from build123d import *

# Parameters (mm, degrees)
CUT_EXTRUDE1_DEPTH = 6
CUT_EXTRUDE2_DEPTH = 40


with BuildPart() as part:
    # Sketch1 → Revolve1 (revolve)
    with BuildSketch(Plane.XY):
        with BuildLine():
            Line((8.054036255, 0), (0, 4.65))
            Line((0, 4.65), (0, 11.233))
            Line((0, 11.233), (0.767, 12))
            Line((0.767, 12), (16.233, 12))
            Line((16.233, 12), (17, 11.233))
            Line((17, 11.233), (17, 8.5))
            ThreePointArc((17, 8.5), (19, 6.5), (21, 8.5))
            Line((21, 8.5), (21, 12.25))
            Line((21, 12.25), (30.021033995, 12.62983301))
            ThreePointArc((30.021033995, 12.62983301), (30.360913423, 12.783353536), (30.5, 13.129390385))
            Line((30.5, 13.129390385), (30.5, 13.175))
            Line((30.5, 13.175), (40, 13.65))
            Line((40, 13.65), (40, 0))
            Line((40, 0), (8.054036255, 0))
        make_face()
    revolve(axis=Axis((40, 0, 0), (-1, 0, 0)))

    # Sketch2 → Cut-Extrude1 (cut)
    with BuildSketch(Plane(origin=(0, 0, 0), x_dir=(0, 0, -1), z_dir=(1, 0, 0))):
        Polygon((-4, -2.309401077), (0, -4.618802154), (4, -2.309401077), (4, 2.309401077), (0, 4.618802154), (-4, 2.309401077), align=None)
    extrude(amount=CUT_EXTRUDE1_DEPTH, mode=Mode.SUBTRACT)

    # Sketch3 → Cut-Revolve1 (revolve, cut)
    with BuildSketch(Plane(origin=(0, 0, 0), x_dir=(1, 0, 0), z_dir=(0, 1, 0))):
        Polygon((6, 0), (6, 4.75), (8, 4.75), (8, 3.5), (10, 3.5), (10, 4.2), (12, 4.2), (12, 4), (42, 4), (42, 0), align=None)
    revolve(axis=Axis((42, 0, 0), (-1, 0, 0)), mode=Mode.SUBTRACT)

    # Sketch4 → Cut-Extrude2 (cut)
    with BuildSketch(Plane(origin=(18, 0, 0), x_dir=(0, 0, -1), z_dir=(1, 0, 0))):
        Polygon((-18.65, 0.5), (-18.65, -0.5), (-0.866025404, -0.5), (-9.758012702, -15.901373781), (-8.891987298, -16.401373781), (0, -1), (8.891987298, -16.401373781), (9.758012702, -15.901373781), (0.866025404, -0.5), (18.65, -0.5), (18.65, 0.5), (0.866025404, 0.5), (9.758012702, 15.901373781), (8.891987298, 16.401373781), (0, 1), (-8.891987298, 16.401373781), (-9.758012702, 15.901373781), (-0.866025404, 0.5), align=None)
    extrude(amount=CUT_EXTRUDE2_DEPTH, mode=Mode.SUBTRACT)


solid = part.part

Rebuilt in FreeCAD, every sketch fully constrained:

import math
import FreeCAD as App
import Part
import Sketcher
Q = App.Units.Quantity

doc = App.newDocument("Part")
body = doc.addObject("PartDesign::Body", "Body")

sketch1 = doc.addObject("Sketcher::SketchObject", "Sketch")
body.addObject(sketch1)
sketch1.AttachmentSupport = (doc.XY_Plane, [""])
sketch1.MapMode = "FlatFace"
sketch1.addGeometry(Part.LineSegment(App.Vector(0, 4.65, 0), App.Vector(8.054, 0, 0)), False)
sketch1.addGeometry(Part.LineSegment(App.Vector(8.054, 0, 0), App.Vector(40, 0, 0)), False)
sketch1.addGeometry(Part.LineSegment(App.Vector(40, 0, 0), App.Vector(40, 13.65, 0)), False)
sketch1.addGeometry(Part.LineSegment(App.Vector(40, 13.65, 0), App.Vector(30.5, 13.175, 0)), False)
sketch1.addGeometry(Part.LineSegment(App.Vector(30.5, 13.175, 0), App.Vector(30.5, 13.129, 0)), False)
sketch1.addGeometry(Part.ArcOfCircle(Part.Circle(App.Vector(30, 13.129, 0), App.Vector(0, 0, 1), 0.5), math.radians(-88), math.radians(0)), False)
sketch1.addGeometry(Part.LineSegment(App.Vector(30.021, 12.63, 0), App.Vector(21, 12.25, 0)), False)
sketch1.addGeometry(Part.LineSegment(App.Vector(21, 12.25, 0), App.Vector(21, 8.5, 0)), False)
sketch1.addGeometry(Part.ArcOfCircle(Part.Circle(App.Vector(19, 8.5, 0), App.Vector(0, 0, 1), 2), math.radians(180), math.radians(360)), False)
sketch1.addGeometry(Part.LineSegment(App.Vector(17, 8.5, 0), App.Vector(17, 11.233, 0)), False)
sketch1.addGeometry(Part.LineSegment(App.Vector(17, 11.233, 0), App.Vector(16.233, 12, 0)), False)
sketch1.addGeometry(Part.LineSegment(App.Vector(16.233, 12, 0), App.Vector(0.767, 12, 0)), False)
sketch1.addGeometry(Part.LineSegment(App.Vector(0.767, 12, 0), App.Vector(0, 11.233, 0)), False)
sketch1.addGeometry(Part.LineSegment(App.Vector(0, 11.233, 0), App.Vector(0, 4.65, 0)), False)
sketch1.addConstraint(Sketcher.Constraint("Coincident", 0, 2, 1, 1))
sketch1.addConstraint(Sketcher.Constraint("Coincident", 1, 2, 2, 1))
sketch1.addConstraint(Sketcher.Constraint("Coincident", 2, 2, 3, 1))
sketch1.addConstraint(Sketcher.Constraint("Coincident", 3, 2, 4, 1))
sketch1.addConstraint(Sketcher.Constraint("Tangent", 4, 2, 5, 2))
sketch1.addConstraint(Sketcher.Constraint("Tangent", 5, 1, 6, 1))
sketch1.addConstraint(Sketcher.Constraint("Coincident", 6, 2, 7, 1))
sketch1.addConstraint(Sketcher.Constraint("Tangent", 7, 2, 8, 2))
sketch1.addConstraint(Sketcher.Constraint("Tangent", 8, 1, 9, 1))
sketch1.addConstraint(Sketcher.Constraint("Coincident", 9, 2, 10, 1))
sketch1.addConstraint(Sketcher.Constraint("Coincident", 10, 2, 11, 1))
sketch1.addConstraint(Sketcher.Constraint("Coincident", 11, 2, 12, 1))
sketch1.addConstraint(Sketcher.Constraint("Coincident", 12, 2, 13, 1))
sketch1.addConstraint(Sketcher.Constraint("Coincident", 13, 2, 0, 1))
sketch1.addConstraint(Sketcher.Constraint("Horizontal", 1))
sketch1.addConstraint(Sketcher.Constraint("Vertical", 2))
sketch1.addConstraint(Sketcher.Constraint("Vertical", 4))
sketch1.addConstraint(Sketcher.Constraint("Vertical", 7))
sketch1.addConstraint(Sketcher.Constraint("Vertical", 9))
sketch1.addConstraint(Sketcher.Constraint("Horizontal", 11))
sketch1.addConstraint(Sketcher.Constraint("Vertical", 13))
sketch1.addConstraint(Sketcher.Constraint("PointOnObject", 0, 2, -1))
sketch1.addConstraint(Sketcher.Constraint("PointOnObject", 12, 2, -2))
sketch1.addConstraint(Sketcher.Constraint("Perpendicular", 10, 12))
sketch1.addConstraint(Sketcher.Constraint("Horizontal", 9, 2, 12, 2))
sketch1.addConstraint(Sketcher.Constraint("Equal", 10, 12))
sketch1.addConstraint(Sketcher.Constraint("Radius", 8, 2.0))
sketch1.addConstraint(Sketcher.Constraint("Radius", 5, 0.5))
sketch1.addConstraint(Sketcher.Constraint("Angle", 0, Q("-30 deg")))
sketch1.addConstraint(Sketcher.Constraint("DistanceX", -1, 1, 5, 3, 30.0))
sketch1.addConstraint(Sketcher.Constraint("DistanceX", -1, 1, 8, 3, 19.0))
sketch1.addConstraint(Sketcher.Constraint("DistanceX", -1, 1, 1, 2, 40.0))
sketch1.addConstraint(Sketcher.Constraint("DistanceY", -1, 1, 10, 2, 12.0))
sketch1.addConstraint(Sketcher.Constraint("Distance", 0, 9.3))
sketch1.addConstraint(Sketcher.Constraint("DistanceY", 2, 1, 2, 2, 13.65))
sketch1.addConstraint(Sketcher.Constraint("DistanceY", 7, 2, 7, 1, 3.75))
sketch1.addConstraint(Sketcher.Constraint("DistanceY", -1, 1, 8, 3, 8.5))
sketch1.addConstraint(Sketcher.Constraint("DistanceX", 11, 2, 11, 1, 15.466))
sketch1.addConstraint(Sketcher.Constraint("DistanceY", -1, 1, 3, 2, 13.175))
sketch1.addConstraint(Sketcher.Constraint("DistanceY", 4, 2, 4, 1, 0.04561))
revolution = doc.addObject("PartDesign::Revolution", "Revolution")
body.addObject(revolution)
revolution.Profile = sketch1
revolution.ReferenceAxis = (sketch1, ["H_Axis"])
revolution.Angle = 360

sketch2 = doc.addObject("Sketcher::SketchObject", "Sketch001")
body.addObject(sketch2)
sketch2.AttachmentSupport = (doc.YZ_Plane, [""])
sketch2.MapMode = "FlatFace"
sketch2.addGeometry(Part.LineSegment(App.Vector(-2.3, 4, 0), App.Vector(-4.6, 0, 0)), False)
sketch2.addGeometry(Part.LineSegment(App.Vector(-4.6, 0, 0), App.Vector(-2.3, -4, 0)), False)
sketch2.addGeometry(Part.LineSegment(App.Vector(-2.3, -4, 0), App.Vector(2.3, -4, 0)), False)
sketch2.addGeometry(Part.LineSegment(App.Vector(2.3, -4, 0), App.Vector(4.6, 0, 0)), False)
sketch2.addGeometry(Part.LineSegment(App.Vector(4.6, 0, 0), App.Vector(2.3, 4, 0)), False)
sketch2.addGeometry(Part.LineSegment(App.Vector(2.3, 4, 0), App.Vector(-2.3, 4, 0)), False)
sketch2.addConstraint(Sketcher.Constraint("Coincident", 0, 2, 1, 1))
sketch2.addConstraint(Sketcher.Constraint("Coincident", 1, 2, 2, 1))
sketch2.addConstraint(Sketcher.Constraint("Coincident", 2, 2, 3, 1))
sketch2.addConstraint(Sketcher.Constraint("Coincident", 3, 2, 4, 1))
sketch2.addConstraint(Sketcher.Constraint("Coincident", 4, 2, 5, 1))
sketch2.addConstraint(Sketcher.Constraint("Coincident", 5, 2, 0, 1))
sketch2.addConstraint(Sketcher.Constraint("Horizontal", 2))
sketch2.addConstraint(Sketcher.Constraint("Horizontal", 5))
sketch2.addConstraint(Sketcher.Constraint("Symmetric", 0, 2, 3, 2, -1, 1))
sketch2.addConstraint(Sketcher.Constraint("Symmetric", 1, 2, 4, 2, -1, 1))
sketch2.addConstraint(Sketcher.Constraint("PointOnObject", 0, 2, -1))
sketch2.addConstraint(Sketcher.Constraint("Parallel", 0, 3))
sketch2.addConstraint(Sketcher.Constraint("Vertical", 2, 2, 4, 2))
sketch2.addConstraint(Sketcher.Constraint("Angle", 0, Q("-120 deg")))
sketch2.addConstraint(Sketcher.Constraint("DistanceY", 1, 2, -1, 1, 4.0))
sketch2.addConstraint(Sketcher.Constraint("DistanceX", 1, 2, -1, 1, 2.309401))
pocket1 = doc.addObject("PartDesign::Pocket", "Pocket")
body.addObject(pocket1)
pocket1.Profile = sketch2
pocket1.Length = 6
pocket1.Reversed = True

sketch3 = doc.addObject("Sketcher::SketchObject", "Sketch002")
body.addObject(sketch3)
sketch3.AttachmentSupport = (doc.XZ_Plane, [""])
sketch3.MapMode = "FlatFace"
sketch3.addGeometry(Part.LineSegment(App.Vector(6, -4.75, 0), App.Vector(6, 0, 0)), False)
sketch3.addGeometry(Part.LineSegment(App.Vector(6, 0, 0), App.Vector(42, 0, 0)), False)
sketch3.addGeometry(Part.LineSegment(App.Vector(42, 0, 0), App.Vector(42, -4, 0)), False)
sketch3.addGeometry(Part.LineSegment(App.Vector(42, -4, 0), App.Vector(12, -4, 0)), False)
sketch3.addGeometry(Part.LineSegment(App.Vector(12, -4, 0), App.Vector(12, -4.2, 0)), False)
sketch3.addGeometry(Part.LineSegment(App.Vector(12, -4.2, 0), App.Vector(10, -4.2, 0)), False)
sketch3.addGeometry(Part.LineSegment(App.Vector(10, -4.2, 0), App.Vector(10, -3.5, 0)), False)
sketch3.addGeometry(Part.LineSegment(App.Vector(10, -3.5, 0), App.Vector(8, -3.5, 0)), False)
sketch3.addGeometry(Part.LineSegment(App.Vector(8, -3.5, 0), App.Vector(8, -4.75, 0)), False)
sketch3.addGeometry(Part.LineSegment(App.Vector(8, -4.75, 0), App.Vector(6, -4.75, 0)), False)
sketch3.addConstraint(Sketcher.Constraint("Coincident", 0, 2, 1, 1))
sketch3.addConstraint(Sketcher.Constraint("Coincident", 1, 2, 2, 1))
sketch3.addConstraint(Sketcher.Constraint("Coincident", 2, 2, 3, 1))
sketch3.addConstraint(Sketcher.Constraint("Coincident", 3, 2, 4, 1))
sketch3.addConstraint(Sketcher.Constraint("Coincident", 4, 2, 5, 1))
sketch3.addConstraint(Sketcher.Constraint("Coincident", 5, 2, 6, 1))
sketch3.addConstraint(Sketcher.Constraint("Coincident", 6, 2, 7, 1))
sketch3.addConstraint(Sketcher.Constraint("Coincident", 7, 2, 8, 1))
sketch3.addConstraint(Sketcher.Constraint("Coincident", 8, 2, 9, 1))
sketch3.addConstraint(Sketcher.Constraint("Coincident", 9, 2, 0, 1))
sketch3.addConstraint(Sketcher.Constraint("Vertical", 0))
sketch3.addConstraint(Sketcher.Constraint("Horizontal", 1))
sketch3.addConstraint(Sketcher.Constraint("Vertical", 2))
sketch3.addConstraint(Sketcher.Constraint("Horizontal", 3))
sketch3.addConstraint(Sketcher.Constraint("Vertical", 4))
sketch3.addConstraint(Sketcher.Constraint("Horizontal", 5))
sketch3.addConstraint(Sketcher.Constraint("Vertical", 6))
sketch3.addConstraint(Sketcher.Constraint("Horizontal", 7))
sketch3.addConstraint(Sketcher.Constraint("Vertical", 8))
sketch3.addConstraint(Sketcher.Constraint("Horizontal", 9))
sketch3.addConstraint(Sketcher.Constraint("PointOnObject", 0, 2, -1))
sketch3.addConstraint(Sketcher.Constraint("Equal", 5, 7))
sketch3.addConstraint(Sketcher.Constraint("Equal", 7, 9))
sketch3.addConstraint(Sketcher.Constraint("DistanceX", 1, 1, 1, 2, 36.0))
sketch3.addConstraint(Sketcher.Constraint("DistanceX", 3, 2, 3, 1, 30.0))
sketch3.addConstraint(Sketcher.Constraint("DistanceY", 2, 2, 2, 1, 4.0))
sketch3.addConstraint(Sketcher.Constraint("DistanceY", 4, 2, 4, 1, 0.2))
sketch3.addConstraint(Sketcher.Constraint("DistanceY", 6, 1, 6, 2, 0.7))
sketch3.addConstraint(Sketcher.Constraint("DistanceX", -1, 1, 0, 2, 6.0))
sketch3.addConstraint(Sketcher.Constraint("DistanceY", 0, 1, 0, 2, 4.75))
groove = doc.addObject("PartDesign::Groove", "Groove")
body.addObject(groove)
groove.Profile = sketch3
groove.ReferenceAxis = (sketch3, ["H_Axis"])
groove.Angle = 360

sketch4 = doc.addObject("Sketcher::SketchObject", "Sketch003")
body.addObject(sketch4)
sketch4.AttachmentSupport = (doc.YZ_Plane, [""])
sketch4.MapMode = "FlatFace"
sketch4.AttachmentOffset = App.Placement(App.Vector(0, 0, 18), App.Rotation())
sketch4.addGeometry(Part.LineSegment(App.Vector(0.5, 18.6, 0), App.Vector(-0.5, 18.6, 0)), False)
sketch4.addGeometry(Part.LineSegment(App.Vector(-0.5, 18.6, 0), App.Vector(-0.5, 0.9, 0)), False)
sketch4.addGeometry(Part.LineSegment(App.Vector(-0.5, 0.9, 0), App.Vector(-15.9, 9.8, 0)), False)
sketch4.addGeometry(Part.LineSegment(App.Vector(-15.9, 9.8, 0), App.Vector(-16.4, 8.9, 0)), False)
sketch4.addGeometry(Part.LineSegment(App.Vector(-16.4, 8.9, 0), App.Vector(-1, 0, 0)), False)
sketch4.addGeometry(Part.LineSegment(App.Vector(-1, 0, 0), App.Vector(-16.4, -8.9, 0)), False)
sketch4.addGeometry(Part.LineSegment(App.Vector(-16.4, -8.9, 0), App.Vector(-15.9, -9.8, 0)), False)
sketch4.addGeometry(Part.LineSegment(App.Vector(-15.9, -9.8, 0), App.Vector(-0.5, -0.9, 0)), False)
sketch4.addGeometry(Part.LineSegment(App.Vector(-0.5, -0.9, 0), App.Vector(-0.5, -18.6, 0)), False)
sketch4.addGeometry(Part.LineSegment(App.Vector(-0.5, -18.6, 0), App.Vector(0.5, -18.6, 0)), False)
sketch4.addGeometry(Part.LineSegment(App.Vector(0.5, -18.6, 0), App.Vector(0.5, -0.9, 0)), False)
sketch4.addGeometry(Part.LineSegment(App.Vector(0.5, -0.9, 0), App.Vector(15.9, -9.8, 0)), False)
sketch4.addGeometry(Part.LineSegment(App.Vector(15.9, -9.8, 0), App.Vector(16.4, -8.9, 0)), False)
sketch4.addGeometry(Part.LineSegment(App.Vector(16.4, -8.9, 0), App.Vector(1, 0, 0)), False)
sketch4.addGeometry(Part.LineSegment(App.Vector(1, 0, 0), App.Vector(16.4, 8.9, 0)), False)
sketch4.addGeometry(Part.LineSegment(App.Vector(16.4, 8.9, 0), App.Vector(15.9, 9.8, 0)), False)
sketch4.addGeometry(Part.LineSegment(App.Vector(15.9, 9.8, 0), App.Vector(0.5, 0.9, 0)), False)
sketch4.addGeometry(Part.LineSegment(App.Vector(0.5, 0.9, 0), App.Vector(0.5, 18.6, 0)), False)
sketch4.addConstraint(Sketcher.Constraint("Coincident", 0, 2, 1, 1))
sketch4.addConstraint(Sketcher.Constraint("Coincident", 1, 2, 2, 1))
sketch4.addConstraint(Sketcher.Constraint("Coincident", 2, 2, 3, 1))
sketch4.addConstraint(Sketcher.Constraint("Coincident", 3, 2, 4, 1))
sketch4.addConstraint(Sketcher.Constraint("Coincident", 4, 2, 5, 1))
sketch4.addConstraint(Sketcher.Constraint("Coincident", 5, 2, 6, 1))
sketch4.addConstraint(Sketcher.Constraint("Coincident", 6, 2, 7, 1))
sketch4.addConstraint(Sketcher.Constraint("Coincident", 7, 2, 8, 1))
sketch4.addConstraint(Sketcher.Constraint("Coincident", 8, 2, 9, 1))
sketch4.addConstraint(Sketcher.Constraint("Coincident", 9, 2, 10, 1))
sketch4.addConstraint(Sketcher.Constraint("Coincident", 10, 2, 11, 1))
sketch4.addConstraint(Sketcher.Constraint("Coincident", 11, 2, 12, 1))
sketch4.addConstraint(Sketcher.Constraint("Coincident", 12, 2, 13, 1))
sketch4.addConstraint(Sketcher.Constraint("Coincident", 13, 2, 14, 1))
sketch4.addConstraint(Sketcher.Constraint("Coincident", 14, 2, 15, 1))
sketch4.addConstraint(Sketcher.Constraint("Coincident", 15, 2, 16, 1))
sketch4.addConstraint(Sketcher.Constraint("Coincident", 16, 2, 17, 1))
sketch4.addConstraint(Sketcher.Constraint("Coincident", 17, 2, 0, 1))
sketch4.addConstraint(Sketcher.Constraint("Horizontal", 0))
sketch4.addConstraint(Sketcher.Constraint("Vertical", 1))
sketch4.addConstraint(Sketcher.Constraint("Vertical", 8))
sketch4.addConstraint(Sketcher.Constraint("Horizontal", 9))
sketch4.addConstraint(Sketcher.Constraint("Vertical", 10))
sketch4.addConstraint(Sketcher.Constraint("Vertical", 17))
sketch4.addConstraint(Sketcher.Constraint("Symmetric", 0, 2, 9, 2, -1, 1))
sketch4.addConstraint(Sketcher.Constraint("Symmetric", 2, 2, 11, 2, -1, 1))
sketch4.addConstraint(Sketcher.Constraint("Symmetric", 3, 2, 12, 2, -1, 1))
sketch4.addConstraint(Sketcher.Constraint("Symmetric", 4, 2, 13, 2, -1, 1))
sketch4.addConstraint(Sketcher.Constraint("Symmetric", 5, 2, 14, 2, -1, 1))
sketch4.addConstraint(Sketcher.Constraint("Symmetric", 6, 2, 15, 2, -1, 1))
sketch4.addConstraint(Sketcher.Constraint("Symmetric", 7, 2, 16, 2, -1, 1))
sketch4.addConstraint(Sketcher.Constraint("Symmetric", 7, 2, 10, 2, -2))
sketch4.addConstraint(Sketcher.Constraint("Symmetric", 6, 2, 11, 2, -2))
sketch4.addConstraint(Sketcher.Constraint("Symmetric", 5, 2, 12, 2, -2))
sketch4.addConstraint(Sketcher.Constraint("PointOnObject", 4, 2, -1))
sketch4.addConstraint(Sketcher.Constraint("Perpendicular", 2, 3))
sketch4.addConstraint(Sketcher.Constraint("Perpendicular", 3, 4))
sketch4.addConstraint(Sketcher.Constraint("Perpendicular", 6, 7))
sketch4.addConstraint(Sketcher.Constraint("Equal", 2, 4))
sketch4.addConstraint(Sketcher.Constraint("DistanceX", 0, 2, 0, 1, 1.0))
sketch4.addConstraint(Sketcher.Constraint("Angle", 2, Q("150 deg")))
sketch4.addConstraint(Sketcher.Constraint("Distance", 3, 1.0))
sketch4.addConstraint(Sketcher.Constraint("DistanceY", -1, 1, 0, 2, 18.65))
sketch4.addConstraint(Sketcher.Constraint("DistanceY", 5, 2, 2, 2, 18.65))
pocket2 = doc.addObject("PartDesign::Pocket", "Pocket001")
body.addObject(pocket2)
pocket2.Profile = sketch4
pocket2.Length = 40
pocket2.Reversed = True

doc.recompute()
